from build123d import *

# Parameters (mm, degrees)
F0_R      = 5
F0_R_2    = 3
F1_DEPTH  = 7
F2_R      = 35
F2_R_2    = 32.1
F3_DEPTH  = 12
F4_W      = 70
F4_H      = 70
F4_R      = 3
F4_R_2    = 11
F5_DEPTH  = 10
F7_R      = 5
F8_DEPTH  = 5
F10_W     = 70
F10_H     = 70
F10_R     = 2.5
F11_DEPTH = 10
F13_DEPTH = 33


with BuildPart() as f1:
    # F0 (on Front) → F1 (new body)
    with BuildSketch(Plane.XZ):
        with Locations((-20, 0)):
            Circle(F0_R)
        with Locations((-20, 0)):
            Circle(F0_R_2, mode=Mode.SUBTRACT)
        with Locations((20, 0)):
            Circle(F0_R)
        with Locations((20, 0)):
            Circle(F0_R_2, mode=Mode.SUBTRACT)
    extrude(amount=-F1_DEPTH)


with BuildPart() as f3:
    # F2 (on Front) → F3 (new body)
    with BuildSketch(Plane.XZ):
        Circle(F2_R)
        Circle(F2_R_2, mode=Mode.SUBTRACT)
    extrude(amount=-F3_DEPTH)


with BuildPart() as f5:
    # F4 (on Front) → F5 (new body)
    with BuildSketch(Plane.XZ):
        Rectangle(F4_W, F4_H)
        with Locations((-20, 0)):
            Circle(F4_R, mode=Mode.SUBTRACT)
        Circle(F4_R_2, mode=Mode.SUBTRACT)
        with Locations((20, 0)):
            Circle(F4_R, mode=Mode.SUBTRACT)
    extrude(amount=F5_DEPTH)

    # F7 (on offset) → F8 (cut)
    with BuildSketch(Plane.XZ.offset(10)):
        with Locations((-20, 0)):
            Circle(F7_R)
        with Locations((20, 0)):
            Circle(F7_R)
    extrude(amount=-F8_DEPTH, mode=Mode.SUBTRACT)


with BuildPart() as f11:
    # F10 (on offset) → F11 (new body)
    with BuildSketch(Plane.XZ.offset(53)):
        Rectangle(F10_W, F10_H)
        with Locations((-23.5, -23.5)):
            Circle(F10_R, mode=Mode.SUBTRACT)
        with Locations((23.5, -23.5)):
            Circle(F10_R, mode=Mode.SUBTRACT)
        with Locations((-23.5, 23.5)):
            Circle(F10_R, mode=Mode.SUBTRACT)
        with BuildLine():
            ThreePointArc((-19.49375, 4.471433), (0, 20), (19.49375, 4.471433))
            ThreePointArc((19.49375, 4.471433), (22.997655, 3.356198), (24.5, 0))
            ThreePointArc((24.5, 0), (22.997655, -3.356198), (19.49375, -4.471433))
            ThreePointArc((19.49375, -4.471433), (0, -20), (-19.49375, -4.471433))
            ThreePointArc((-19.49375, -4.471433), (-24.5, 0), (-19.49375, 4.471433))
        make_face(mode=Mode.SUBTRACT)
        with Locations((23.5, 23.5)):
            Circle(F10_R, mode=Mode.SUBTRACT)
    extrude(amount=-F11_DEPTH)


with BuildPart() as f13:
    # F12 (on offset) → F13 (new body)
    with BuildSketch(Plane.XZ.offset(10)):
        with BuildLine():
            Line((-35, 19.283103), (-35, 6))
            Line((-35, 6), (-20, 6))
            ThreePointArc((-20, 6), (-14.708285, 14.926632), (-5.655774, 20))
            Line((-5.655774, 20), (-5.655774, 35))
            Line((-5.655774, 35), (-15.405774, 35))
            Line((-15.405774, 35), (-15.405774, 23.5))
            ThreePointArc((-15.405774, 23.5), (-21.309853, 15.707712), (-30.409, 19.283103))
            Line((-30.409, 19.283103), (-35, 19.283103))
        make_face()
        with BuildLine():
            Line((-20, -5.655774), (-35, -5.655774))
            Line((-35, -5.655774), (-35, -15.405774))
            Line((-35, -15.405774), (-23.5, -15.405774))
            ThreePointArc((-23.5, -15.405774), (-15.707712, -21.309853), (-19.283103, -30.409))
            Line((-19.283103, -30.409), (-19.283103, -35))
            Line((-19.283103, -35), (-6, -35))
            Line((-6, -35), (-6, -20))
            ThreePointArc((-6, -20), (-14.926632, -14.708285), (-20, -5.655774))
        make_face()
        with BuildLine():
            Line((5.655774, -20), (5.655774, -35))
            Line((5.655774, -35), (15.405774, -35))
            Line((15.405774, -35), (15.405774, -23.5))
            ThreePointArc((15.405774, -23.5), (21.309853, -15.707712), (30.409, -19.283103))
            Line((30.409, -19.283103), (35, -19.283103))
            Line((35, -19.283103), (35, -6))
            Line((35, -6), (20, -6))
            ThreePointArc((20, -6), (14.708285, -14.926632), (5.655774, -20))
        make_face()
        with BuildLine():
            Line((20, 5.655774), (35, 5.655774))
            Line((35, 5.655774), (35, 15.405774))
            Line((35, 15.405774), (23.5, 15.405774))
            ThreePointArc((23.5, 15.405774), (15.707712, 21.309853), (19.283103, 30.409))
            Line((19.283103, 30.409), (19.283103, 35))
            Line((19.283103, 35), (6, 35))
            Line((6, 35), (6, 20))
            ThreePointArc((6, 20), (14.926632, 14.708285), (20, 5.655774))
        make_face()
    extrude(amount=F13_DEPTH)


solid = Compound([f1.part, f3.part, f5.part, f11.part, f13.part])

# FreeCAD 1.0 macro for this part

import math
import FreeCAD as App
import Part
import Sketcher
from FreeCAD import Vector
Q = App.Units.Quantity


def add_polygon(sketch, points):
    """Adds a closed chain of lines whose ends are joined by coincident constraints."""
    first, n = sketch.GeometryCount, len(points)
    for a, b in zip(points, points[1:] + points[:1]):
        sketch.addGeometry(Part.LineSegment(App.Vector(*a, 0), App.Vector(*b, 0)), False)
    for i in range(n):
        sketch.addConstraint(Sketcher.Constraint("Coincident", first + i, 2, first + (i + 1) % n, 1))

doc = App.newDocument("Part")
body = doc.addObject("PartDesign::Body", "Body")
body.AllowCompound = True

# Sketch on XZ plane
sketch1 = doc.addObject("Sketcher::SketchObject", "Sketch")
body.addObject(sketch1)
sketch1.AttachmentSupport = (doc.XZ_Plane, [""])
sketch1.MapMode = "FlatFace"
sketch1.addGeometry([
    Part.Circle(Vector(-20, 0, 0), Vector(0, 0, 1), 5),
    Part.Circle(Vector(-20, 0, 0), Vector(0, 0, 1), 3),
    Part.Circle(Vector(20, 0, 0), Vector(0, 0, 1), 5),
    Part.Circle(Vector(20, 0, 0), Vector(0, 0, 1), 3),
], False)
sketch1.addConstraint([
    Sketcher.Constraint("Coincident", 1, 3, 0, 3),
    Sketcher.Constraint("Coincident", 3, 3, 2, 3),
    Sketcher.Constraint("Equal", 0, 2),
    Sketcher.Constraint("Equal", 1, 3),
    Sketcher.Constraint("Symmetric", 0, 3, 2, 3, -1, 1),
    Sketcher.Constraint("PointOnObject", 0, 3, -1),
    Sketcher.Constraint("Diameter", 0, Q("10 mm")),
    Sketcher.Constraint("Diameter", 1, Q("6 mm")),
    Sketcher.Constraint("DistanceX", 0, 3, -1, 1, Q("20 mm")),
])
pad1 = doc.addObject("PartDesign::Pad", "Pad")
body.addObject(pad1)
pad1.Profile = sketch1
pad1.Length = 7
pad1.Reversed = True
body2 = doc.addObject("PartDesign::Body", "Body001")

# Sketch on XZ plane
sketch2 = doc.addObject("Sketcher::SketchObject", "Sketch001")
body2.addObject(sketch2)
sketch2.AttachmentSupport = (doc.getObject("XZ_Plane001"), [""])
sketch2.MapMode = "FlatFace"
sketch2.addGeometry([
    Part.Circle(Vector(0, 0, 0), Vector(0, 0, 1), 35),
    Part.Circle(Vector(0, 0, 0), Vector(0, 0, 1), 32),
], False)
sketch2.addConstraint([
    Sketcher.Constraint("Coincident", 0, 3, -1, 1),
    Sketcher.Constraint("Coincident", 1, 3, -1, 1),
    Sketcher.Constraint("Diameter", 0, Q("70 mm")),
    Sketcher.Constraint("Diameter", 1, Q("64.2 mm")),
])
pad2 = doc.addObject("PartDesign::Pad", "Pad001")
body2.addObject(pad2)
pad2.Profile = sketch2
pad2.Length = 12
pad2.Reversed = True
body3 = doc.addObject("PartDesign::Body", "Body002")

# Sketch on XZ plane
sketch3 = doc.addObject("Sketcher::SketchObject", "Sketch002")
body3.addObject(sketch3)
sketch3.AttachmentSupport = (doc.getObject("XZ_Plane002"), [""])
sketch3.MapMode = "FlatFace"
add_polygon(sketch3, [(-35, 35), (-35, -35), (35, -35), (35, 35)])  # lines 0-3
sketch3.addGeometry(Part.Circle(Vector(-20, 0, 0), Vector(0, 0, 1), 3), False)  # 4
sketch3.addGeometry(Part.Circle(Vector(0, 0, 0), Vector(0, 0, 1), 11), False)  # 5
sketch3.addGeometry(Part.Circle(Vector(20, 0, 0), Vector(0, 0, 1), 3), False)  # 6
sketch3.addConstraint([
    Sketcher.Constraint("Vertical", 0),
    Sketcher.Constraint("Horizontal", 1),
    Sketcher.Constraint("Vertical", 2),
    Sketcher.Constraint("Horizontal", 3),
    Sketcher.Constraint("Coincident", 5, 3, -1, 1),
    Sketcher.Constraint("Equal", 4, 6),
    Sketcher.Constraint("Symmetric", 4, 3, 6, 3, -1, 1),
    Sketcher.Constraint("Symmetric", 0, 2, 2, 2, -1, 1),
    Sketcher.Constraint("PointOnObject", 4, 3, -1),
    Sketcher.Constraint("Equal", 3, 0),
    Sketcher.Constraint("Diameter", 4, Q("6 mm")),
    Sketcher.Constraint("Diameter", 5, Q("22 mm")),
    Sketcher.Constraint("DistanceX", 1, 1, 1, 2, Q("70 mm")),
    Sketcher.Constraint("DistanceX", 4, 3, -1, 1, Q("20 mm")),
])
pad3 = doc.addObject("PartDesign::Pad", "Pad002")
body3.addObject(pad3)
pad3.Profile = sketch3
pad3.Length = 10

# Sketch on XZ plane
sketch4 = doc.addObject("Sketcher::SketchObject", "Sketch003")
body3.addObject(sketch4)
sketch4.AttachmentSupport = (doc.getObject("XZ_Plane002"), [""])
sketch4.MapMode = "FlatFace"
sketch4.AttachmentOffset = App.Placement(Vector(0, 0, 10), App.Rotation())
sketch4.addGeometry([
    Part.Circle(Vector(-20, 0, 0), Vector(0, 0, 1), 5),
    Part.Circle(Vector(20, 0, 0), Vector(0, 0, 1), 5),
], False)
sketch4.addConstraint([
    Sketcher.Constraint("Equal", 0, 1),
    Sketcher.Constraint("Symmetric", 0, 3, 1, 3, -1, 1),
    Sketcher.Constraint("PointOnObject", 0, 3, -1),
    Sketcher.Constraint("Diameter", 0, Q("10 mm")),
    Sketcher.Constraint("DistanceX", 0, 3, -1, 1, Q("20 mm")),
])
pocket1 = doc.addObject("PartDesign::Pocket", "Pocket")
body3.addObject(pocket1)
pocket1.Profile = sketch4
pocket1.Length = 5
body4 = doc.addObject("PartDesign::Body", "Body003")

# Sketch on XZ plane
sketch5 = doc.addObject("Sketcher::SketchObject", "Sketch004")
body4.addObject(sketch5)
sketch5.AttachmentSupport = (doc.getObject("XZ_Plane003"), [""])
sketch5.MapMode = "FlatFace"
sketch5.AttachmentOffset = App.Placement(Vector(0, 0, 53), App.Rotation())
add_polygon(sketch5, [(-35, 35), (-35, -35), (35, -35), (35, 35)])  # lines 0-3
sketch5.addGeometry(Part.Circle(Vector(-23.5, -23.5, 0), Vector(0, 0, 1), 2.5), False)  # 4
sketch5.addGeometry(Part.Circle(Vector(23.5, -23.5, 0), Vector(0, 0, 1), 2.5), False)  # 5
sketch5.addGeometry(Part.Circle(Vector(-23.5, 23.5, 0), Vector(0, 0, 1), 2.5), False)  # 6
sketch5.addGeometry(Part.ArcOfCircle(Part.Circle(Vector(-20, 0, 0), Vector(0, 0, 1), 4.5), math.radians(84), math.radians(276)), False)  # 7
sketch5.addGeometry(Part.ArcOfCircle(Part.Circle(Vector(0, 0, 0), Vector(0, 0, 1), 20), math.radians(13), math.radians(167)), False)  # 8
sketch5.addGeometry(Part.ArcOfCircle(Part.Circle(Vector(20, 0, 0), Vector(0, 0, 1), 4.5), math.radians(0), math.radians(96)), False)  # 9
sketch5.addGeometry(Part.ArcOfCircle(Part.Circle(Vector(20, 0, 0), Vector(0, 0, 1), 4.5), math.radians(-96), math.radians(0)), False)  # 10
sketch5.addGeometry(Part.ArcOfCircle(Part.Circle(Vector(0, 0, 0), Vector(0, 0, 1), 20), math.radians(-167), math.radians(-13)), False)  # 11
sketch5.addGeometry(Part.Circle(Vector(23.5, 23.5, 0), Vector(0, 0, 1), 2.5), False)  # 12
sketch5.addConstraint([
    Sketcher.Constraint("Coincident", 7, 1, 8, 2),
    Sketcher.Constraint("Coincident", 8, 1, 9, 2),
    Sketcher.Constraint("Tangent", 9, 1, 10, 2),
    Sketcher.Constraint("Coincident", 10, 1, 11, 2),
    Sketcher.Constraint("Coincident", 11, 1, 7, 2),
    Sketcher.Constraint("Vertical", 0),
    Sketcher.Constraint("Horizontal", 1),
    Sketcher.Constraint("Vertical", 2),
    Sketcher.Constraint("Horizontal", 3),
    Sketcher.Constraint("Coincident", 8, 3, -1, 1),
    Sketcher.Constraint("Coincident", 11, 3, -1, 1),
    Sketcher.Constraint("Equal", 4, 5),
    Sketcher.Constraint("Equal", 5, 6),
    Sketcher.Constraint("Equal", 7, 9),
    Sketcher.Constraint("Equal", 9, 10),
    Sketcher.Constraint("Equal", 8, 11),
    Sketcher.Constraint("Equal", 6, 12),
    Sketcher.Constraint("Symmetric", 5, 3, 6, 3, -1, 1),
    Sketcher.Constraint("Symmetric", 7, 3, 9, 3, -1, 1),
    Sketcher.Constraint("Symmetric", 4, 3, 12, 3, -1, 1),
    Sketcher.Constraint("Symmetric", 0, 2, 2, 2, -1, 1),
    Sketcher.Constraint("Symmetric", 4, 3, 5, 3, -2),
    Sketcher.Constraint("PointOnObject", 7, 3, -1),
    Sketcher.Constraint("PointOnObject", 9, 1, -1),
    Sketcher.Constraint("Equal", 3, 0),
    Sketcher.Constraint("Diameter", 4, Q("5 mm")),
    Sketcher.Constraint("Radius", 8, Q("20 mm")),
    Sketcher.Constraint("Radius", 7, Q("4.5 mm")),
    Sketcher.Constraint("DistanceX", 1, 1, 1, 2, Q("70 mm")),
    Sketcher.Constraint("DistanceX", 7, 3, -1, 1, Q("20 mm")),
    Sketcher.Constraint("DistanceX", 4, 3, 5, 3, Q("47 mm")),
    Sketcher.Constraint("DistanceY", 4, 3, 6, 3, Q("47 mm")),
])
pad4 = doc.addObject("PartDesign::Pad", "Pad003")
body4.addObject(pad4)
pad4.Profile = sketch5
pad4.Length = 10
pad4.Reversed = True
body5 = doc.addObject("PartDesign::Body", "Body004")
body5.AllowCompound = True

# Sketch on XZ plane
sketch6 = doc.addObject("Sketcher::SketchObject", "Sketch005")
body5.addObject(sketch6)
sketch6.AttachmentSupport = (doc.getObject("XZ_Plane004"), [""])
sketch6.MapMode = "FlatFace"
sketch6.AttachmentOffset = App.Placement(Vector(0, 0, 10), App.Rotation())
sketch6.addGeometry([
    Part.LineSegment(Vector(-35, 19.3, 0), Vector(-35, 6, 0)),  # 0
    Part.LineSegment(Vector(-35, 6, 0), Vector(-20, 6, 0)),  # 1
    Part.ArcOfCircle(Part.Circle(Vector(-0.7, 0.6, 0), Vector(0, 0, 1), 20), math.radians(104), math.radians(164)),  # 2
    Part.LineSegment(Vector(-5.7, 20, 0), Vector(-5.7, 35, 0)),  # 3
    Part.LineSegment(Vector(-5.7, 35, 0), Vector(-15.4, 35, 0)),  # 4
    Part.LineSegment(Vector(-15.4, 35, 0), Vector(-15.4, 23.5, 0)),  # 5
    Part.ArcOfCircle(Part.Circle(Vector(-23.5, 23.5, 0), Vector(0, 0, 1), 8.1), math.radians(-149), math.radians(0)),  # 6
    Part.LineSegment(Vector(-30.4, 19.3, 0), Vector(-35, 19.3, 0)),  # 7
    Part.LineSegment(Vector(-20, -5.7, 0), Vector(-35, -5.7, 0)),  # 8
    Part.LineSegment(Vector(-35, -5.7, 0), Vector(-35, -15.4, 0)),  # 9
    Part.LineSegment(Vector(-35, -15.4, 0), Vector(-23.5, -15.4, 0)),  # 10
    Part.ArcOfCircle(Part.Circle(Vector(-23.5, -23.5, 0), Vector(0, 0, 1), 8.1), math.radians(-59), math.radians(90)),  # 11
    Part.LineSegment(Vector(-19.3, -30.4, 0), Vector(-19.3, -35, 0)),  # 12
    Part.LineSegment(Vector(-19.3, -35, 0), Vector(-6, -35, 0)),  # 13
    Part.LineSegment(Vector(-6, -35, 0), Vector(-6, -20, 0)),  # 14
    Part.ArcOfCircle(Part.Circle(Vector(-0.6, -0.7, 0), Vector(0, 0, 1), 20), math.radians(-166), math.radians(-106)),  # 15
    Part.LineSegment(Vector(5.7, -20, 0), Vector(5.7, -35, 0)),  # 16
    Part.LineSegment(Vector(5.7, -35, 0), Vector(15.4, -35, 0)),  # 17
    Part.LineSegment(Vector(15.4, -35, 0), Vector(15.4, -23.5, 0)),  # 18
    Part.ArcOfCircle(Part.Circle(Vector(23.5, -23.5, 0), Vector(0, 0, 1), 8.1), math.radians(31), math.radians(180)),  # 19
    Part.LineSegment(Vector(30.4, -19.3, 0), Vector(35, -19.3, 0)),  # 20
    Part.LineSegment(Vector(35, -19.3, 0), Vector(35, -6, 0)),  # 21
    Part.LineSegment(Vector(35, -6, 0), Vector(20, -6, 0)),  # 22
    Part.ArcOfCircle(Part.Circle(Vector(0.7, -0.6, 0), Vector(0, 0, 1), 20), math.radians(-76), math.radians(-16)),  # 23
    Part.LineSegment(Vector(20, 5.7, 0), Vector(35, 5.7, 0)),  # 24
    Part.LineSegment(Vector(35, 5.7, 0), Vector(35, 15.4, 0)),  # 25
    Part.LineSegment(Vector(35, 15.4, 0), Vector(23.5, 15.4, 0)),  # 26
    Part.ArcOfCircle(Part.Circle(Vector(23.5, 23.5, 0), Vector(0, 0, 1), 8.1), math.radians(121), math.radians(270)),  # 27
    Part.LineSegment(Vector(19.3, 30.4, 0), Vector(19.3, 35, 0)),  # 28
    Part.LineSegment(Vector(19.3, 35, 0), Vector(6, 35, 0)),  # 29
    Part.LineSegment(Vector(6, 35, 0), Vector(6, 20, 0)),  # 30
    Part.ArcOfCircle(Part.Circle(Vector(0.6, 0.7, 0), Vector(0, 0, 1), 20), math.radians(14), math.radians(74)),  # 31
], False)
sketch6.addConstraint([
    Sketcher.Constraint("Coincident", 0, 2, 1, 1),
    Sketcher.Constraint("Coincident", 1, 2, 2, 2),
    Sketcher.Constraint("Coincident", 2, 1, 3, 1),
    Sketcher.Constraint("Coincident", 3, 2, 4, 1),
    Sketcher.Constraint("Coincident", 4, 2, 5, 1),
    Sketcher.Constraint("Tangent", 5, 2, 6, 2),
    Sketcher.Constraint("Coincident", 6, 1, 7, 1),
    Sketcher.Constraint("Coincident", 7, 2, 0, 1),
    Sketcher.Constraint("Coincident", 8, 2, 9, 1),
    Sketcher.Constraint("Coincident", 9, 2, 10, 1),
    Sketcher.Constraint("Tangent", 10, 2, 11, 2),
    Sketcher.Constraint("Coincident", 11, 1, 12, 1),
    Sketcher.Constraint("Coincident", 12, 2, 13, 1),
    Sketcher.Constraint("Coincident", 13, 2, 14, 1),
    Sketcher.Constraint("Coincident", 14, 2, 15, 2),
    Sketcher.Constraint("Coincident", 15, 1, 8, 1),
    Sketcher.Constraint("Coincident", 16, 2, 17, 1),
    Sketcher.Constraint("Coincident", 17, 2, 18, 1),
    Sketcher.Constraint("Tangent", 18, 2, 19, 2),
    Sketcher.Constraint("Coincident", 19, 1, 20, 1),
    Sketcher.Constraint("Coincident", 20, 2, 21, 1),
    Sketcher.Constraint("Coincident", 21, 2, 22, 1),
    Sketcher.Constraint("Coincident", 22, 2, 23, 2),
    Sketcher.Constraint("Coincident", 23, 1, 16, 1),
    Sketcher.Constraint("Coincident", 24, 2, 25, 1),
    Sketcher.Constraint("Coincident", 25, 2, 26, 1),
    Sketcher.Constraint("Tangent", 26, 2, 27, 2),
    Sketcher.Constraint("Coincident", 27, 1, 28, 1),
    Sketcher.Constraint("Coincident", 28, 2, 29, 1),
    Sketcher.Constraint("Coincident", 29, 2, 30, 1),
    Sketcher.Constraint("Coincident", 30, 2, 31, 2),
    Sketcher.Constraint("Coincident", 31, 1, 24, 1),
    Sketcher.Constraint("Vertical", 0),
    Sketcher.Constraint("Horizontal", 1),
    Sketcher.Constraint("Vertical", 3),
    Sketcher.Constraint("Horizontal", 4),
    Sketcher.Constraint("Vertical", 5),
    Sketcher.Constraint("Horizontal", 7),
    Sketcher.Constraint("Horizontal", 8),
    Sketcher.Constraint("Vertical", 9),
    Sketcher.Constraint("Horizontal", 10),
    Sketcher.Constraint("Vertical", 12),
    Sketcher.Constraint("Horizontal", 13),
    Sketcher.Constraint("Vertical", 14),
    Sketcher.Constraint("Vertical", 16),
    Sketcher.Constraint("Horizontal", 17),
    Sketcher.Constraint("Vertical", 18),
    Sketcher.Constraint("Horizontal", 20),
    Sketcher.Constraint("Vertical", 21),
    Sketcher.Constraint("Horizontal", 22),
    Sketcher.Constraint("Horizontal", 24),
    Sketcher.Constraint("Vertical", 25),
    Sketcher.Constraint("Horizontal", 26),
    Sketcher.Constraint("Vertical", 28),
    Sketcher.Constraint("Horizontal", 29),
    Sketcher.Constraint("Vertical", 30),
    Sketcher.Constraint("Equal", 6, 11),
    Sketcher.Constraint("Equal", 2, 15),
    Sketcher.Constraint("Equal", 11, 19),
    Sketcher.Constraint("Equal", 15, 23),
    Sketcher.Constraint("Equal", 19, 27),
    Sketcher.Constraint("Equal", 23, 31),
    Sketcher.Constraint("Symmetric", 6, 3, 19, 3, -1, 1),
    Sketcher.Constraint("Symmetric", 2, 3, 23, 3, -1, 1),
    Sketcher.Constraint("Symmetric", 11, 3, 27, 3, -1, 1),
    Sketcher.Constraint("Symmetric", 15, 3, 31, 3, -1, 1),
    Sketcher.Constraint("Symmetric", 3, 2, 16, 2, -1, 1),
    Sketcher.Constraint("Symmetric", 7, 2, 20, 2, -1, 1),
    Sketcher.Constraint("Symmetric", 8, 2, 24, 2, -1, 1),
    Sketcher.Constraint("Symmetric", 12, 2, 28, 2, -1, 1),
    Sketcher.Constraint("Symmetric", 11, 3, 19, 3, -2),
    Sketcher.Constraint("Horizontal", 13, 2, 16, 2),
    Sketcher.Constraint("Horizontal", 14, 2, 23, 1),
    Sketcher.Constraint("Horizontal", 2, 1, 30, 2),
    Sketcher.Constraint("Vertical", 7, 2, 8, 2),
    Sketcher.Constraint("Vertical", 1, 2, 15, 1),
    Sketcher.Constraint("Vertical", 22, 2, 31, 1),
    Sketcher.Constraint("Equal", 29, 0),
    Sketcher.Constraint("Equal", 24, 3),
    Sketcher.Constraint("Equal", 26, 5),
    Sketcher.Constraint("Equal", 17, 9),
    Sketcher.Constraint("Equal", 20, 12),
    Sketcher.Constraint("Radius", 2, Q("20.000001 mm")),
    Sketcher.Constraint("DistanceX", 1, 1, 1, 2, Q("15 mm")),
    Sketcher.Constraint("DistanceX", 10, 1, 10, 2, Q("11.5 mm")),
    Sketcher.Constraint("DistanceX", 0, 2, -1, 1, Q("35 mm")),
    Sketcher.Constraint("DistanceY", -1, 1, 0, 2, Q("6 mm")),
    Sketcher.Constraint("DistanceY", -1, 1, 2, 1, Q("20 mm")),
    Sketcher.Constraint("DistanceX", 4, 2, 4, 1, Q("9.75 mm")),
    Sketcher.Constraint("DistanceX", 7, 2, 7, 1, Q("4.591 mm")),
    Sketcher.Constraint("Radius", 6, Q("8.094226 mm")),
])
pad5 = doc.addObject("PartDesign::Pad", "Pad004")
body5.addObject(pad5)
pad5.Profile = sketch6
pad5.Length = 33

doc.recompute()
